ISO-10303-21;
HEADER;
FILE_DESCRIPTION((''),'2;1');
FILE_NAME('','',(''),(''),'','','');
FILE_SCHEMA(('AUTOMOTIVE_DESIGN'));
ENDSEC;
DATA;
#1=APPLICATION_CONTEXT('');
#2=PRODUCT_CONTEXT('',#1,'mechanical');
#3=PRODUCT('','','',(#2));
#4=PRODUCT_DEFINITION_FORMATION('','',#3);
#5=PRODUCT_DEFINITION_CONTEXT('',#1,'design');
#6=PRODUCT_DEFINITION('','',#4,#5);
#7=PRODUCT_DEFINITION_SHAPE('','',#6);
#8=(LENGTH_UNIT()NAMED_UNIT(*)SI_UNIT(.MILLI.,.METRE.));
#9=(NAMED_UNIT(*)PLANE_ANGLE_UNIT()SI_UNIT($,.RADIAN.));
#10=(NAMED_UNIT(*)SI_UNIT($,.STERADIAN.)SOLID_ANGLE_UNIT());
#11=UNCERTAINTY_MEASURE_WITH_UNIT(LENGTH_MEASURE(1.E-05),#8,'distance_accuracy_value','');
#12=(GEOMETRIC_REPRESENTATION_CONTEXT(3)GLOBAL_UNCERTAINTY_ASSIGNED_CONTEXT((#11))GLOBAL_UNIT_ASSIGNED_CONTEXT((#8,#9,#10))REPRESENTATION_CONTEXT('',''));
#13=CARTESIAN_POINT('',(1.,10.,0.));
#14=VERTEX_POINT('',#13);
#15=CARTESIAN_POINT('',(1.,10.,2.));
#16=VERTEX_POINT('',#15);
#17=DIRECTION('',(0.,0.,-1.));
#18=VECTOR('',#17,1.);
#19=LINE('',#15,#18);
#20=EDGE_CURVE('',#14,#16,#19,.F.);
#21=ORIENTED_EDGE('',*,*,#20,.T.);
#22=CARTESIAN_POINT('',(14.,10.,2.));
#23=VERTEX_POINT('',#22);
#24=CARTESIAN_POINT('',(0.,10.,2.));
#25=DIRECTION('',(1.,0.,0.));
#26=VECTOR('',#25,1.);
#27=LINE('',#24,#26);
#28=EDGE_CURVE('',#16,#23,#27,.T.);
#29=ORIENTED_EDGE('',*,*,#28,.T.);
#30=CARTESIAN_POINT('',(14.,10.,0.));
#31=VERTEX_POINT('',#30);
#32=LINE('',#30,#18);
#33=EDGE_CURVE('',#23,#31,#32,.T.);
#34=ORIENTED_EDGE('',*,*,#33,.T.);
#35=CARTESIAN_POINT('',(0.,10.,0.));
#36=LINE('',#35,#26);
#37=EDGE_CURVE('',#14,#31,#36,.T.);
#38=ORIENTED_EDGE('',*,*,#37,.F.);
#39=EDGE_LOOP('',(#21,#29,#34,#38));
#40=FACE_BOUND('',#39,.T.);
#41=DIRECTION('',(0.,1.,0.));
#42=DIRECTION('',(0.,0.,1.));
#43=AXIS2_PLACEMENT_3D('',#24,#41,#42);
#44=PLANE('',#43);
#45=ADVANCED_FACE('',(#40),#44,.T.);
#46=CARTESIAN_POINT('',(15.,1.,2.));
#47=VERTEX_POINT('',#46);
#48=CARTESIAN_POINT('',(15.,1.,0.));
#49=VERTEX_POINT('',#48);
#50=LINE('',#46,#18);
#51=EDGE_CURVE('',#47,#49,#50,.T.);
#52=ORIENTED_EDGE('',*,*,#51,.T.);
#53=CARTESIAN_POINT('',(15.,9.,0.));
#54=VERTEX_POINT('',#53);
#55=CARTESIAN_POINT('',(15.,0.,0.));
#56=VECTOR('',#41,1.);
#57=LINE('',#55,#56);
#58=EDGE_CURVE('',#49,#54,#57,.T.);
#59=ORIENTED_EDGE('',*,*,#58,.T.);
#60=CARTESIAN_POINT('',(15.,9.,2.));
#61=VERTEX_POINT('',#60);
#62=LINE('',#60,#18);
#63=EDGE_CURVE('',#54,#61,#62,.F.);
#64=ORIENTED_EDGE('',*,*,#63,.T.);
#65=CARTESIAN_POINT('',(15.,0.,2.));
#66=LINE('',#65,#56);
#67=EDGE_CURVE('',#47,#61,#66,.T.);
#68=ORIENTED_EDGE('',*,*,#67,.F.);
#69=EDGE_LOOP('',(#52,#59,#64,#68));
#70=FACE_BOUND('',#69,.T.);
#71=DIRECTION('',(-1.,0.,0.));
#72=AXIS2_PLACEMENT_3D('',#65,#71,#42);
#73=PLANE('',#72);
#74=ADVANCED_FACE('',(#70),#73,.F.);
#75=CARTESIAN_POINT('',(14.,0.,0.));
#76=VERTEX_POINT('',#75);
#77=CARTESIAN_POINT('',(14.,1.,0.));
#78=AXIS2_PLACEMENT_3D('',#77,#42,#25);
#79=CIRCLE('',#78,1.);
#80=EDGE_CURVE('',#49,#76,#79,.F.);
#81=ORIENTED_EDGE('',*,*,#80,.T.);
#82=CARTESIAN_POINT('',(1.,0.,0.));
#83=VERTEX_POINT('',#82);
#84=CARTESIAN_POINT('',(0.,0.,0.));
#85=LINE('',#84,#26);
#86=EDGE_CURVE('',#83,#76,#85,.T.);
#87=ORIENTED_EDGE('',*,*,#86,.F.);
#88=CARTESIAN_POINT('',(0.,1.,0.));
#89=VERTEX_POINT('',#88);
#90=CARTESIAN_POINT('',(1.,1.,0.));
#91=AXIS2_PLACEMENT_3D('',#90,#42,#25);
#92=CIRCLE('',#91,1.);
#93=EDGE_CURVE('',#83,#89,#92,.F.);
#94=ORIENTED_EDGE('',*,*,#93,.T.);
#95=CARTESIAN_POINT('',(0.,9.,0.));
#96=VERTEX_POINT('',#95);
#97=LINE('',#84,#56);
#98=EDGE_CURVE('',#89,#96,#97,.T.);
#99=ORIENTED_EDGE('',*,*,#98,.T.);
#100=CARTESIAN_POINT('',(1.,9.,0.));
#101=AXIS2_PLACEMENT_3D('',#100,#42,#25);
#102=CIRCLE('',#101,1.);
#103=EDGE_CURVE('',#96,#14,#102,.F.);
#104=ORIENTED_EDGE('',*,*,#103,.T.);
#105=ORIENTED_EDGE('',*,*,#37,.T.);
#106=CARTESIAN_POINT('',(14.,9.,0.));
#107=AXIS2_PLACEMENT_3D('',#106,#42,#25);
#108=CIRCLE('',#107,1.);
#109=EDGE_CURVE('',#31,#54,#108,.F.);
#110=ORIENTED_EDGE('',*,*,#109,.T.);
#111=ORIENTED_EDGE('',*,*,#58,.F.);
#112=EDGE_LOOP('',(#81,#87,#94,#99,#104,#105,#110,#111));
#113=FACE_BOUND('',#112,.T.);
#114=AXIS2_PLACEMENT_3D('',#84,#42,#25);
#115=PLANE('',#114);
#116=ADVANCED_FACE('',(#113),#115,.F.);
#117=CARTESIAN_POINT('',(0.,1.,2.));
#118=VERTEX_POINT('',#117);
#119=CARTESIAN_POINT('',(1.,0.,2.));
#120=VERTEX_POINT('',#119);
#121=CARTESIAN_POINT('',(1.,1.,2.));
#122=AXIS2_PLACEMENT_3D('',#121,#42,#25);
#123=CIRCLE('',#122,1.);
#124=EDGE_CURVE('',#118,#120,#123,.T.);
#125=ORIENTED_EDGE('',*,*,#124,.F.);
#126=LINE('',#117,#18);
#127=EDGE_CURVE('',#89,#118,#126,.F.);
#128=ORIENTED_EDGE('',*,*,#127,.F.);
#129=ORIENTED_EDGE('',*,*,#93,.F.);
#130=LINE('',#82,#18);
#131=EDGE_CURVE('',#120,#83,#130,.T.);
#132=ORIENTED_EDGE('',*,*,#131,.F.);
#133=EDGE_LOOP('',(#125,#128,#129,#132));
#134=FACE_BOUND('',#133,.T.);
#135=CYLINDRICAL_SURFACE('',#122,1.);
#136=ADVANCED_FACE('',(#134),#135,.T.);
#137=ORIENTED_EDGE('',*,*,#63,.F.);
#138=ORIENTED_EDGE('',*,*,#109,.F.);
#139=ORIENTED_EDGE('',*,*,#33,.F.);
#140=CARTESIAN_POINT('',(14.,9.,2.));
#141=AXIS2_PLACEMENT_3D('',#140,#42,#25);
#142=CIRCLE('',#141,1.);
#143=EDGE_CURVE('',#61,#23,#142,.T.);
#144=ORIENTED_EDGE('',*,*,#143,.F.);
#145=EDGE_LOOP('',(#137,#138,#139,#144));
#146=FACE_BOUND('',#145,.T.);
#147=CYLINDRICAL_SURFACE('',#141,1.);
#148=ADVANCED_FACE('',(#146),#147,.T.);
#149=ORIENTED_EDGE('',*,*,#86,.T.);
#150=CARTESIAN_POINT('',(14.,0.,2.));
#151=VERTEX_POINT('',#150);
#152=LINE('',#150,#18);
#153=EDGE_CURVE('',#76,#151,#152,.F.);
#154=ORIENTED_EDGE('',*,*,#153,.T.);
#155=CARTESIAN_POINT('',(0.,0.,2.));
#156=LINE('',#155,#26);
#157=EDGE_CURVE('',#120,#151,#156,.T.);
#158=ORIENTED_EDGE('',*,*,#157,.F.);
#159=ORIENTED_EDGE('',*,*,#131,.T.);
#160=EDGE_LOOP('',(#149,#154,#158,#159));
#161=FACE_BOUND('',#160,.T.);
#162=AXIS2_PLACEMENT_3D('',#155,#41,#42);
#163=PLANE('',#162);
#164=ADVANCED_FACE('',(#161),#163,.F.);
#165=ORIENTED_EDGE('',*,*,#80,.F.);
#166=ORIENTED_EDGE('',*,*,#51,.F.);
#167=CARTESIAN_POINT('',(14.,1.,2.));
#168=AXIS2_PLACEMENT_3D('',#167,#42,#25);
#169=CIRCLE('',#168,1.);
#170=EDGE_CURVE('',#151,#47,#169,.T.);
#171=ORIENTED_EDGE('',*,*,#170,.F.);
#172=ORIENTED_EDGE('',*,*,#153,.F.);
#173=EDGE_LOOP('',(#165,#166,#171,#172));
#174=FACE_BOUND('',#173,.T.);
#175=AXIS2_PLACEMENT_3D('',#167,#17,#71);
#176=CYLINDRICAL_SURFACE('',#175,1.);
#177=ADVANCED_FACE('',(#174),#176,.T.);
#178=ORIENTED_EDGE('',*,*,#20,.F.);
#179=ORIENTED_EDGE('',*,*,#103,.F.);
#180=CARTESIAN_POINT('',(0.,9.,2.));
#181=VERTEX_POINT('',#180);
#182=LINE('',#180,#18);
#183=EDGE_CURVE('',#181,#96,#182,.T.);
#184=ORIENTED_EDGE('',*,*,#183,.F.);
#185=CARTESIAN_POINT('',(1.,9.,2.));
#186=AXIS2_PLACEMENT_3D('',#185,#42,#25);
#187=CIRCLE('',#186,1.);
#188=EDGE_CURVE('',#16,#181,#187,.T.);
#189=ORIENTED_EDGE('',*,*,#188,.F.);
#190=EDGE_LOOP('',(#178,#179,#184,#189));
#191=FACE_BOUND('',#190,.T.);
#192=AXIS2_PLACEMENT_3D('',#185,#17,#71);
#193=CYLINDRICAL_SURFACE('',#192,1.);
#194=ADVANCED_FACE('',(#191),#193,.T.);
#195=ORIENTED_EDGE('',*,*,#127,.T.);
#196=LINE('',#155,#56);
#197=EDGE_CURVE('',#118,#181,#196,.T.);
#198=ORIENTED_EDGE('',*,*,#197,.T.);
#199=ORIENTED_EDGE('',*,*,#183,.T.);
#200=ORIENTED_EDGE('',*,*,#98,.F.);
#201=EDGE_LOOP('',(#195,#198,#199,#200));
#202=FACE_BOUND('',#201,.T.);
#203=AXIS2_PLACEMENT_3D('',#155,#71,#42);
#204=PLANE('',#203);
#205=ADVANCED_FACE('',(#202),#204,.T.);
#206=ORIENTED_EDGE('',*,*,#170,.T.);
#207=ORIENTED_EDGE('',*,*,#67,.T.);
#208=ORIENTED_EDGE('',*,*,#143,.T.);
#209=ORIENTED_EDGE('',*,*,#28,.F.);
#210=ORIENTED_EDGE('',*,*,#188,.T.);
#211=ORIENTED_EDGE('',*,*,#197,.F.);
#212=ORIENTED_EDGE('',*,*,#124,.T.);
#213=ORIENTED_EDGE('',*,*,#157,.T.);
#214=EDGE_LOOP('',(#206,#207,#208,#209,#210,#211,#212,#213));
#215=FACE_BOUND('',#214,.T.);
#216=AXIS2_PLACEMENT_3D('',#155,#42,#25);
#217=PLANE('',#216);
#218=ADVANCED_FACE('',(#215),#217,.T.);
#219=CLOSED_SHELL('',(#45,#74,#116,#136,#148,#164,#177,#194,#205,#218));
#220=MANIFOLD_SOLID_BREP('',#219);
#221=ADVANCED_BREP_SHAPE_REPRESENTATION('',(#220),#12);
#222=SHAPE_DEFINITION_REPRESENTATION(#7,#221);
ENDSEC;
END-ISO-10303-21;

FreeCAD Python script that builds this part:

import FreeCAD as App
import Part
import Sketcher


def edges_at(feature, points):
    """Names of the edges that pass closest to the given points."""
    edges = feature.Shape.Edges
    near = lambda p: min(range(len(edges)), key=lambda i: edges[i].distToShape(Part.Vertex(*p))[0])
    return sorted({f"Edge{near(p) + 1}" for p in points})


def add_polygon(sketch, points):
    """Adds a closed chain of lines whose ends are joined by coincident constraints."""
    first, n = sketch.GeometryCount, len(points)
    for a, b in zip(points, points[1:] + points[:1]):
        sketch.addGeometry(Part.LineSegment(App.Vector(*a, 0), App.Vector(*b, 0)), False)
    for i in range(n):
        sketch.addConstraint(Sketcher.Constraint("Coincident", first + i, 2, first + (i + 1) % n, 1))

doc = App.newDocument("Part")
body = doc.addObject("PartDesign::Body", "Body")

# Sketch on XY plane
sketch1 = body.newObject("Sketcher::SketchObject", "Sketch")
sketch1.AttachmentSupport = (doc.getObject("XY_Plane"), [""])
sketch1.MapMode = "FlatFace"
add_polygon(sketch1, [(0, 10), (0, 0), (15, 0), (15, 10)])  # lines 0-3
sketch1.addConstraint([
    Sketcher.Constraint("Vertical", 0),
    Sketcher.Constraint("Horizontal", 1),
    Sketcher.Constraint("Vertical", 2),
    Sketcher.Constraint("Horizontal", 3),
    Sketcher.Constraint("Coincident", 0, 2, -1, 1),
    Sketcher.Constraint("DistanceX", 1, 1, 1, 2, 15.0),
    Sketcher.Constraint("DistanceY", 0, 2, 0, 1, 10.0),
])
pad1 = body.newObject("PartDesign::Pad", "Pad")
pad1.Profile = sketch1
pad1.Length = 2
doc.recompute()

fillet = body.newObject("PartDesign::Fillet", "Fillet")
fillet.Base = (pad1, edges_at(pad1, [
    (0, 0, 1),
    (0, 10, 1),
    (15, 10, 1),
    (15, 0, 1),
]))
fillet.Radius = 1

doc.recompute()
